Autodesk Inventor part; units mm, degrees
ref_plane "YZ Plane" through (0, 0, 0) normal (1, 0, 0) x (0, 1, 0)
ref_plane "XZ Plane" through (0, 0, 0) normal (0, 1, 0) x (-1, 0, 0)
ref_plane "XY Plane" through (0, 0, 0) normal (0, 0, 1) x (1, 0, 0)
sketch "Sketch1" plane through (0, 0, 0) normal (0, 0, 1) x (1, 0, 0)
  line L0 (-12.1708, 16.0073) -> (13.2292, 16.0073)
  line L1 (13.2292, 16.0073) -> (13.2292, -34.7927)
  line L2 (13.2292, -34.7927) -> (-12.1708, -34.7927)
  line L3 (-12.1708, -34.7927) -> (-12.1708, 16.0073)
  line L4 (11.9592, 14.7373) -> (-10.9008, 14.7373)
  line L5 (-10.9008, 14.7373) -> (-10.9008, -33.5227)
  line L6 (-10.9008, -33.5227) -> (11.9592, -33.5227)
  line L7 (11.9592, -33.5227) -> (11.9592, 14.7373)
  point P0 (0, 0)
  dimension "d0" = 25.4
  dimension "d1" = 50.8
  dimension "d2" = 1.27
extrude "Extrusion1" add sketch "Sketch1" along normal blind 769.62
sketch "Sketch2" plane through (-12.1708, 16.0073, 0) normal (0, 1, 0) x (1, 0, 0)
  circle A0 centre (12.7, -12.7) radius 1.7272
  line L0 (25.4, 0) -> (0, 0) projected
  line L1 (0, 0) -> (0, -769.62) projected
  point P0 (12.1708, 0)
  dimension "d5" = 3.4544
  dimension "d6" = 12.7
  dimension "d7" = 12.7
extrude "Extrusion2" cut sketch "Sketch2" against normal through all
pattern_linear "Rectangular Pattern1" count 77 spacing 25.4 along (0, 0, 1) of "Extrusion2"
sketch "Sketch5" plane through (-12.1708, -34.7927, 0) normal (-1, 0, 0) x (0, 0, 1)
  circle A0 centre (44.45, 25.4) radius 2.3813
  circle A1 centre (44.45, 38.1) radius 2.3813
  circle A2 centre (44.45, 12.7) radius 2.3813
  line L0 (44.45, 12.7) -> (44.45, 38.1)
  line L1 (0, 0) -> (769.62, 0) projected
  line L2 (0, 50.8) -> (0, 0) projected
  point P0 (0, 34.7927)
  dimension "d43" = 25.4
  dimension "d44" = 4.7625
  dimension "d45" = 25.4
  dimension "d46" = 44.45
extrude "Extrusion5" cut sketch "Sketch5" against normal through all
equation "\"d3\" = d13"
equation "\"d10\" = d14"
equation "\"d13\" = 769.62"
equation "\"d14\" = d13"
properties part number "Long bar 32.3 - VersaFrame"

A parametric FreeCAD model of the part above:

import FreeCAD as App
import Part
import Sketcher

V = App.Vector
Q = App.Units.Quantity


def add_polygon(sketch, points):
    """Adds a closed chain of lines whose ends are joined by coincident constraints."""
    first, n = sketch.GeometryCount, len(points)
    for a, b in zip(points, points[1:] + points[:1]):
        sketch.addGeometry(Part.LineSegment(App.Vector(*a, 0), App.Vector(*b, 0)), False)
    for i in range(n):
        sketch.addConstraint(Sketcher.Constraint("Coincident", first + i, 2, first + (i + 1) % n, 1))

doc = App.newDocument("Part")
params = doc.addObject("Spreadsheet::Sheet", "Params")
for row, (alias, value) in enumerate([
    ("sketch1_width", "1 in"),
    ("sketch1_height", "2 in"),
    ("pad1_length", "30.3 in"),
    ("sketch2_diameter", "0.136 in"),
    ("linearpattern_pitch", "1 in"),
    ("sketch3_diameter", "0.1875 in"),
], start=1):
    params.set(f"A{row}", alias)
    params.set(f"B{row}", "=" + value)
    params.setAlias(f"B{row}", alias)

body = doc.addObject("PartDesign::Body", "Body")

sketch1 = body.newObject("Sketcher::SketchObject", "Sketch")
sketch1.AttachmentSupport = (doc.getObject("XY_Plane"), [""])
sketch1.MapMode = "FlatFace"
add_polygon(sketch1, [(13, 16), (-12, 16), (-12, -35), (13, -35)])
add_polygon(sketch1, [(-11, 15), (12, 15), (12, -34), (-11, -34)])
sketch1.addConstraint(Sketcher.Constraint("Horizontal", 0))
sketch1.addConstraint(Sketcher.Constraint("Vertical", 1))
sketch1.addConstraint(Sketcher.Constraint("Horizontal", 2))
sketch1.addConstraint(Sketcher.Constraint("Vertical", 3))
sketch1.addConstraint(Sketcher.Constraint("Horizontal", 4))
sketch1.addConstraint(Sketcher.Constraint("Vertical", 5))
sketch1.addConstraint(Sketcher.Constraint("Horizontal", 6))
sketch1.addConstraint(Sketcher.Constraint("Vertical", 7))
sketch1.addConstraint(Sketcher.Constraint("DistanceX", 0, 2, 0, 1, Q("1 in")))
sketch1.addConstraint(Sketcher.Constraint("DistanceY", 1, 2, 1, 1, Q("2 in")))
sketch1.addConstraint(Sketcher.Constraint("DistanceX", 4, 2, 3, 2, Q("0.05 in")))
sketch1.addConstraint(Sketcher.Constraint("DistanceY", 4, 2, 3, 2, Q("0.05 in")))
sketch1.addConstraint(Sketcher.Constraint("DistanceY", 2, 2, 5, 2, Q("0.05 in")))
sketch1.addConstraint(Sketcher.Constraint("DistanceX", 1, 2, 6, 2, Q("0.05 in")))
sketch1.addConstraint(Sketcher.Constraint("DistanceY", -1, 1, 0, 2, Q("0.6302 in")))
sketch1.addConstraint(Sketcher.Constraint("DistanceX", 0, 2, -1, 1, 12.1708))
sketch1.setExpression("Constraints[16]", "Params.sketch1_width")
sketch1.setExpression("Constraints[17]", "Params.sketch1_height")
pad1 = body.newObject("PartDesign::Pad", "Pad")
pad1.Profile = sketch1
pad1.setExpression("Length", "Params.pad1_length")

sketch2 = body.newObject("Sketcher::SketchObject", "Sketch001")
sketch2.AttachmentSupport = (doc.getObject("XZ_Plane"), [""])
sketch2.MapMode = "FlatFace"
sketch2.AttachmentOffset = App.Placement(V(0, 0, -0.6302087 * 25.4), App.Rotation())
sketch2.addGeometry(Part.Circle(V(0.5, 12.7, 0), V(0, 0, 1), 1.7), False)
sketch2.addConstraint(Sketcher.Constraint("Diameter", 0, Q("0.136 in")))
sketch2.addConstraint(Sketcher.Constraint("DistanceY", -1, 1, 0, 3, Q("0.5 in")))
sketch2.addConstraint(Sketcher.Constraint("DistanceX", -1, 1, 0, 3, 0.5292))
sketch2.setExpression("Constraints[0]", "Params.sketch2_diameter")
pocket1 = body.newObject("PartDesign::Pocket", "Pocket")
pocket1.Profile = sketch2
pocket1.Type = "ThroughAll"
pocket1.Reversed = True
doc.recompute()

linearpattern = body.newObject("PartDesign::LinearPattern", "LinearPattern")
linearpattern.Originals = [pocket1]
linearpattern.Direction = (doc.getObject("Z_Axis"), [""])
linearpattern.Mode = "offset"
linearpattern.setExpression("Offset", "Params.linearpattern_pitch")
linearpattern.Occurrences = 77
body.Tip = linearpattern

sketch3 = body.newObject("Sketcher::SketchObject", "Sketch002")
sketch3.AttachmentSupport = (doc.getObject("YZ_Plane"), [""])
sketch3.MapMode = "FlatFace"
sketch3.AttachmentOffset = App.Placement(V(0, 0, -12.1708), App.Rotation())
sketch3.addGeometry(Part.Circle(V(-9.4, 44.5, 0), V(0, 0, 1), 2.4), False)
sketch3.addGeometry(Part.Circle(V(-22.1, 44.5, 0), V(0, 0, 1), 2.4), False)
sketch3.addGeometry(Part.Circle(V(3.3, 44.5, 0), V(0, 0, 1), 2.4), False)
sketch3.addConstraint(Sketcher.Constraint("Equal", 0, 1))
sketch3.addConstraint(Sketcher.Constraint("Equal", 1, 2))
sketch3.addConstraint(Sketcher.Constraint("Horizontal", 0, 3, 1, 3))
sketch3.addConstraint(Sketcher.Constraint("Horizontal", 1, 3, 2, 3))
sketch3.addConstraint(Sketcher.Constraint("Diameter", 0, Q("0.1875 in")))
sketch3.addConstraint(Sketcher.Constraint("DistanceX", 1, 3, 2, 3, Q("1 in")))
sketch3.addConstraint(Sketcher.Constraint("DistanceY", -1, 1, 0, 3, Q("1.75 in")))
sketch3.addConstraint(Sketcher.Constraint("DistanceX", 1, 3, 0, 3, Q("0.5 in")))
sketch3.addConstraint(Sketcher.Constraint("DistanceX", 0, 3, -1, 1, Q("0.3698 in")))
sketch3.setExpression("Constraints[4]", "Params.sketch3_diameter")
pocket2 = body.newObject("PartDesign::Pocket", "Pocket001")
pocket2.Profile = sketch3
pocket2.Type = "ThroughAll"
pocket2.Reversed = True

doc.recompute()
